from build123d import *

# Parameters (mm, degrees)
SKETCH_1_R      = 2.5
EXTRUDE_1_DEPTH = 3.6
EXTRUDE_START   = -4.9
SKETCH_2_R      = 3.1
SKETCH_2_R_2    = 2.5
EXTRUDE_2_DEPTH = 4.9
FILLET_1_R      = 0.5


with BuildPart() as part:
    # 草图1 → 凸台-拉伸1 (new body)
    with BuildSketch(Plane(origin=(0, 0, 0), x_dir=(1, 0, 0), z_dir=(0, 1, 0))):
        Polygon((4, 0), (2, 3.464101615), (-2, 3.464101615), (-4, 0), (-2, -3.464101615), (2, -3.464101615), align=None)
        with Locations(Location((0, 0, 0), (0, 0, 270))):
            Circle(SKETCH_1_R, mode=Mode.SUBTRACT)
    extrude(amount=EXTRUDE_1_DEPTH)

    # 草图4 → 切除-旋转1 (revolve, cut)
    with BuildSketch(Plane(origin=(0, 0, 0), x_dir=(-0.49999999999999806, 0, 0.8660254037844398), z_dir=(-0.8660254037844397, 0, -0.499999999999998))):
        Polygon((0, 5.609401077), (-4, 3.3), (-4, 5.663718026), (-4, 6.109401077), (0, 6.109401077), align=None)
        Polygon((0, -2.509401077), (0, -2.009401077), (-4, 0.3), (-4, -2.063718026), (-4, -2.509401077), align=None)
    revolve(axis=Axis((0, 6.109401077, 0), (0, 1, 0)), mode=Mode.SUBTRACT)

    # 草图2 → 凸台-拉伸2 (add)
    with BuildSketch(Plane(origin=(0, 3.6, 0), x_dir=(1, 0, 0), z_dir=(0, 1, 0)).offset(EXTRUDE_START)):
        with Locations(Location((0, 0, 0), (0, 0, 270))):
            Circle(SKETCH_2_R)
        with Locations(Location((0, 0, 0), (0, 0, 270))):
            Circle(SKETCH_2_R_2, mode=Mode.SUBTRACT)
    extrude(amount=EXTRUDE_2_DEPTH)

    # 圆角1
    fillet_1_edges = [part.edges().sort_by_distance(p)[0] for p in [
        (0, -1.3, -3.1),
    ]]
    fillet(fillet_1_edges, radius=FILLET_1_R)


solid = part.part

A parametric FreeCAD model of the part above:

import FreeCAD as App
import Part
import Sketcher
from FreeCAD import Vector
Q = App.Units.Quantity


def edges_at(feature, points):
    """Names of the edges that pass closest to the given points."""
    edges = feature.Shape.Edges
    near = lambda p: min(range(len(edges)), key=lambda i: edges[i].distToShape(Part.Vertex(*p))[0])
    return sorted({f"Edge{near(p) + 1}" for p in points})


def add_polygon(sketch, points):
    """Adds a closed chain of lines whose ends are joined by coincident constraints."""
    first, n = sketch.GeometryCount, len(points)
    for a, b in zip(points, points[1:] + points[:1]):
        sketch.addGeometry(Part.LineSegment(App.Vector(*a, 0), App.Vector(*b, 0)), False)
    for i in range(n):
        sketch.addConstraint(Sketcher.Constraint("Coincident", first + i, 2, first + (i + 1) % n, 1))

doc = App.newDocument("Part")
params = doc.addObject("Spreadsheet::Sheet", "Params")
for row, (alias, value) in enumerate([
    ("sketch1_diameter", "5 mm"),
    ("sketch1_width", "4 mm"),
    ("sketch1_length", "4 mm"),
    ("pad1_length", "3.6 mm"),
    ("sketch2_width", "4 mm"),
    ("sketch2_height", "0.5 mm"),
    ("groove_angle", "360 deg"),
    ("sketch3_diameter", "5 mm"),
    ("sketch3_diameter2", "6.2 mm"),
    ("pad2_length", "4.9 mm"),
    ("fillet_radius", "0.5 mm"),
], start=1):
    params.set(f"A{row}", alias)
    params.set(f"B{row}", "=" + value)
    params.setAlias(f"B{row}", alias)

body = doc.addObject("PartDesign::Body", "Body")

sketch1 = body.newObject("Sketcher::SketchObject", "Sketch")
sketch1.AttachmentSupport = (doc.getObject("XZ_Plane"), [""])
sketch1.MapMode = "FlatFace"
add_polygon(sketch1, [(4, 0), (2, -3.5), (-2, -3.5), (-4, 0), (-2, 3.5), (2, 3.5)])
sketch1.addGeometry(Part.Circle(Vector(0, 0, 0), Vector(0, 0, 1), 2.5), False)
sketch1.addConstraint([
    Sketcher.Constraint("Horizontal", 1),
    Sketcher.Constraint("Horizontal", 4),
    Sketcher.Constraint("Coincident", 6, 3, -1, 1),
    Sketcher.Constraint("Symmetric", 0, 2, 3, 2, -1, 1),
    Sketcher.Constraint("Symmetric", 2, 2, 5, 2, -1, 1),
    Sketcher.Constraint("PointOnObject", 2, 2, -1),
    Sketcher.Constraint("Parallel", 2, 5),
    Sketcher.Constraint("Vertical", 1, 2, 3, 2),
    Sketcher.Constraint("Diameter", 6, 5.0),
    Sketcher.Constraint("DistanceX", 1, 2, 1, 1, 4.0),
    Sketcher.Constraint("Angle", 0, Q("-120 deg")),
    Sketcher.Constraint("Distance", 0, 4.0),
])
sketch1.setExpression("Constraints[14]", "Params.sketch1_diameter")
sketch1.setExpression("Constraints[15]", "Params.sketch1_width")
sketch1.setExpression("Constraints[17]", "Params.sketch1_length")
pad1 = body.newObject("PartDesign::Pad", "Pad")
pad1.Profile = sketch1
pad1.setExpression("Length", "Params.pad1_length")
pad1.Reversed = True

sketch2 = body.newObject("Sketcher::SketchObject", "Sketch001")
sketch2.Placement = App.Placement(Vector(0, 0, 0), App.Rotation(Vector(-0.5, 0, 0.866025404), Vector(0, 1, 0), Vector(-0.866025404, 0, -0.5), "ZXY"))
add_polygon(sketch2, [(-4, 3.3), (0, 5.6), (0, 6.1), (-4, 6.1)])
add_polygon(sketch2, [(0, -2.5), (0, -2), (-4, 0.3), (-4, -2.5)])
sketch2.addConstraint([
    Sketcher.Constraint("Vertical", 1),
    Sketcher.Constraint("Horizontal", 2),
    Sketcher.Constraint("Vertical", 3),
    Sketcher.Constraint("Vertical", 4),
    Sketcher.Constraint("Vertical", 6),
    Sketcher.Constraint("Horizontal", 7),
    Sketcher.Constraint("PointOnObject", 0, 2, -2),
    Sketcher.Constraint("PointOnObject", 4, 2, -2),
    Sketcher.Constraint("Vertical", 3, 2, 5, 2),
    Sketcher.Constraint("Equal", 1, 4),
    Sketcher.Constraint("Equal", 3, 6),
    Sketcher.Constraint("DistanceX", 2, 2, 2, 1, 4.0),
    Sketcher.Constraint("Angle", 0, Q("30 deg")),
    Sketcher.Constraint("DistanceY", 1, 1, 1, 2, 0.5),
    Sketcher.Constraint("DistanceY", 5, 2, 3, 2, 3.0),
    Sketcher.Constraint("DistanceY", -1, 1, 3, 2, 3.3),
])
sketch2.setExpression("Constraints[19]", "Params.sketch2_width")
sketch2.setExpression("Constraints[21]", "Params.sketch2_height")
groove = body.newObject("PartDesign::Groove", "Groove")
groove.Profile = sketch2
groove.ReferenceAxis = (sketch2, ["V_Axis"])
groove.setExpression("Angle", "Params.groove_angle")

sketch3 = body.newObject("Sketcher::SketchObject", "Sketch002")
sketch3.AttachmentSupport = (doc.getObject("XZ_Plane"), [""])
sketch3.MapMode = "FlatFace"
sketch3.AttachmentOffset = App.Placement(Vector(0, 0, 1.3), App.Rotation())
sketch3.addGeometry([
    Part.Circle(Vector(0, 0, 0), Vector(0, 0, 1), 3.1),
    Part.Circle(Vector(0, 0, 0), Vector(0, 0, 1), 2.5),
], False)
sketch3.addConstraint([
    Sketcher.Constraint("Coincident", 0, 3, -1, 1),
    Sketcher.Constraint("Coincident", 1, 3, -1, 1),
    Sketcher.Constraint("Diameter", 1, 5.0),
    Sketcher.Constraint("Diameter", 0, 6.2),
])
sketch3.setExpression("Constraints[2]", "Params.sketch3_diameter")
sketch3.setExpression("Constraints[3]", "Params.sketch3_diameter2")
pad2 = body.newObject("PartDesign::Pad", "Pad001")
pad2.Profile = sketch3
pad2.setExpression("Length", "Params.pad2_length")
pad2.Reversed = True
doc.recompute()

fillet = body.newObject("PartDesign::Fillet", "Fillet")
fillet.Base = (pad2, edges_at(pad2, [(0, -1.3, -3.1)]))
fillet.setExpression("Radius", "Params.fillet_radius")

doc.recompute()
